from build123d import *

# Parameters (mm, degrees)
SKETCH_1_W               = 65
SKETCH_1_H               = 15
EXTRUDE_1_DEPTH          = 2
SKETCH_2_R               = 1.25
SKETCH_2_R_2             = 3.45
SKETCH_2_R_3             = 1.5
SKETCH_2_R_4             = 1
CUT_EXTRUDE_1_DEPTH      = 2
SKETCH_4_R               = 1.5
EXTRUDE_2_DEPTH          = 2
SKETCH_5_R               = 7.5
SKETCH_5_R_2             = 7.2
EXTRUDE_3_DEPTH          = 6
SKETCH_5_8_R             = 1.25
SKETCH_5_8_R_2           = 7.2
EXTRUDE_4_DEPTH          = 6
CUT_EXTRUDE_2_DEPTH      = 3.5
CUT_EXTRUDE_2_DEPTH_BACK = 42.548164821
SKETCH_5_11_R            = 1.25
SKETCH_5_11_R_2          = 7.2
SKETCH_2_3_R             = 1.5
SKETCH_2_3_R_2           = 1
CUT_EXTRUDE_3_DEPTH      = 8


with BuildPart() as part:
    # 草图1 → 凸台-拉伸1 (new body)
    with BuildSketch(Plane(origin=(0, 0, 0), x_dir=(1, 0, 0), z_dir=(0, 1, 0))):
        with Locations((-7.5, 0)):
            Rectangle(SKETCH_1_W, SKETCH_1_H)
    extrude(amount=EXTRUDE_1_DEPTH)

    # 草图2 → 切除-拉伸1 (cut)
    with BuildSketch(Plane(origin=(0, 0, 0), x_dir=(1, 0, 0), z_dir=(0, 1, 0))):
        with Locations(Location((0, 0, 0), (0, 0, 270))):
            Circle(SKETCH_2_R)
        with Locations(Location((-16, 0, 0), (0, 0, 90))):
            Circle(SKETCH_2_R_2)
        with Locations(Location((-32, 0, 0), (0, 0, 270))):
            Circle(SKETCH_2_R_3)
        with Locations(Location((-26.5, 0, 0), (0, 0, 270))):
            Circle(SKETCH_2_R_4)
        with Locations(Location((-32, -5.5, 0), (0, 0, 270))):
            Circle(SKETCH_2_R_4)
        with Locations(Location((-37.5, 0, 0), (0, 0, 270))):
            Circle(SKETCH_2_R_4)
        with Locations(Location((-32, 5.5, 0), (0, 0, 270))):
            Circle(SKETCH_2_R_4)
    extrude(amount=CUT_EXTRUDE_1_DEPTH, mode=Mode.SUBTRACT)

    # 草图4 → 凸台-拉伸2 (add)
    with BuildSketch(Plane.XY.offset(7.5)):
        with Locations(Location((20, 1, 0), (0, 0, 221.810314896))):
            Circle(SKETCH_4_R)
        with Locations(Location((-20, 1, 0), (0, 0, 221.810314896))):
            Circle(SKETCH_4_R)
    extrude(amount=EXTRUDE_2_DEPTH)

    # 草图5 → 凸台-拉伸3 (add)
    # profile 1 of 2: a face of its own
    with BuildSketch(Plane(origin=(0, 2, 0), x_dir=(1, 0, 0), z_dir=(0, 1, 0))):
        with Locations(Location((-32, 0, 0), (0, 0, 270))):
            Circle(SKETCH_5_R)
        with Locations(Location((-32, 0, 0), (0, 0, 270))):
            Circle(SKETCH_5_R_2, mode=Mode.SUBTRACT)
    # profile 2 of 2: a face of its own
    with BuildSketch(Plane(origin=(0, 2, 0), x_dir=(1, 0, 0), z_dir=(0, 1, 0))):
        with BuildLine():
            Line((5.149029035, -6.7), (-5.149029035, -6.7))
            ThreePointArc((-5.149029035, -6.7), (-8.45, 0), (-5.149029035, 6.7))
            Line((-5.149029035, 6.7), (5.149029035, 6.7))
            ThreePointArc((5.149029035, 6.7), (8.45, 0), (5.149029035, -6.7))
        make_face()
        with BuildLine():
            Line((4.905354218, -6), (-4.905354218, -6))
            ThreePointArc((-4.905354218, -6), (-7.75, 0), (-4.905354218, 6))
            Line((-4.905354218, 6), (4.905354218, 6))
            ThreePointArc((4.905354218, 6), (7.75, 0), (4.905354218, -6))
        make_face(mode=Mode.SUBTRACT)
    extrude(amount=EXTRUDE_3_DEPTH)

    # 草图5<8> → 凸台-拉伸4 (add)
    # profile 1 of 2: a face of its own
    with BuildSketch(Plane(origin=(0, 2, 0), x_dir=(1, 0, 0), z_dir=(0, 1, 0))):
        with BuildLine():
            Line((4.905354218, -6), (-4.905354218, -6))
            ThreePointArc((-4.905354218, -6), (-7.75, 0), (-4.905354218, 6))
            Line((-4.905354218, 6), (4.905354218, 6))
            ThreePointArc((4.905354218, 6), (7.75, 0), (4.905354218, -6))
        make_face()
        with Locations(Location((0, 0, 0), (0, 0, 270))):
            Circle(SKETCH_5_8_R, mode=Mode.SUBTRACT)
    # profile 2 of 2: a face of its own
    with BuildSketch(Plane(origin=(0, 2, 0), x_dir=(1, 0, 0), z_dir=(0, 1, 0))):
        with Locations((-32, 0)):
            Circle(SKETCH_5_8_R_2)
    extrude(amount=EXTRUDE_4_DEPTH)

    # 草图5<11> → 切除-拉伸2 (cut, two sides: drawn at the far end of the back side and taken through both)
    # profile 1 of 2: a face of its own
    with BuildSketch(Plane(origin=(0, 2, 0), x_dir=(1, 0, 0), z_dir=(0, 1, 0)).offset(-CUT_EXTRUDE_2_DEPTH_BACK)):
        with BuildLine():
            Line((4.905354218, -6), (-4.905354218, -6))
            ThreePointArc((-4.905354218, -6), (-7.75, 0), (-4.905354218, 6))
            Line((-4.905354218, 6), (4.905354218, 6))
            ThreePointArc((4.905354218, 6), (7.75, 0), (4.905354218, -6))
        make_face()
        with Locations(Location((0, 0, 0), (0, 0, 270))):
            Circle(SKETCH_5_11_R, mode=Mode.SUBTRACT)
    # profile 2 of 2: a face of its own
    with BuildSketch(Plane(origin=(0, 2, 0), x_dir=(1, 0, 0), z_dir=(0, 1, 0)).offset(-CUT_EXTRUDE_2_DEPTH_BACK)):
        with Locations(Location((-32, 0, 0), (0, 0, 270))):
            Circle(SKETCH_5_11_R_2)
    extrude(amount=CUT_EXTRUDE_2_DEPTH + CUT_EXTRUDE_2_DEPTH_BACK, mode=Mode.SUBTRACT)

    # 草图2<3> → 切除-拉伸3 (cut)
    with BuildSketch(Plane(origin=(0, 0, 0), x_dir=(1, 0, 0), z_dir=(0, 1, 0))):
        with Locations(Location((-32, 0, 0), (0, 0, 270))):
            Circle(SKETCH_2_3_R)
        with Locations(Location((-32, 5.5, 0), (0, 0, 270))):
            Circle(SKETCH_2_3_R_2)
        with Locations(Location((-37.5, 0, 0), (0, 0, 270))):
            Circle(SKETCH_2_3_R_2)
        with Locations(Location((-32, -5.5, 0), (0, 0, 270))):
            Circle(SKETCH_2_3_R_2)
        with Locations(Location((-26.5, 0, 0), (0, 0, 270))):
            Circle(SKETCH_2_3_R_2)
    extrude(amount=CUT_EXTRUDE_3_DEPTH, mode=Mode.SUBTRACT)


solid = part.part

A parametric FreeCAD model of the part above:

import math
import FreeCAD as App
import Part
import Sketcher
from FreeCAD import Vector
Q = App.Units.Quantity


def add_polygon(sketch, points):
    """Adds a closed chain of lines whose ends are joined by coincident constraints."""
    first, n = sketch.GeometryCount, len(points)
    for a, b in zip(points, points[1:] + points[:1]):
        sketch.addGeometry(Part.LineSegment(App.Vector(*a, 0), App.Vector(*b, 0)), False)
    for i in range(n):
        sketch.addConstraint(Sketcher.Constraint("Coincident", first + i, 2, first + (i + 1) % n, 1))

doc = App.newDocument("Part")
body = doc.addObject("PartDesign::Body", "Body")

sketch1 = doc.addObject("Sketcher::SketchObject", "Sketch")
body.addObject(sketch1)
sketch1.AttachmentSupport = (doc.XZ_Plane, [""])
sketch1.MapMode = "FlatFace"
add_polygon(sketch1, [(-40, -7.5), (-40, 7.5), (25, 7.5), (25, -7.5)])
sketch1.addConstraint(Sketcher.Constraint("Vertical", 0))
sketch1.addConstraint(Sketcher.Constraint("Horizontal", 1))
sketch1.addConstraint(Sketcher.Constraint("Vertical", 2))
sketch1.addConstraint(Sketcher.Constraint("Horizontal", 3))
sketch1.addConstraint(Sketcher.Constraint("DistanceX", 1, 1, 1, 2, Q("65 mm")))
sketch1.addConstraint(Sketcher.Constraint("DistanceY", 0, 1, 0, 2, Q("15 mm")))
sketch1.addConstraint(Sketcher.Constraint("DistanceX", 0, 2, -1, 1, Q("40 mm")))
sketch1.addConstraint(Sketcher.Constraint("DistanceY", -1, 1, 0, 2, Q("7.5 mm")))
pad1 = doc.addObject("PartDesign::Pad", "Pad")
body.addObject(pad1)
pad1.Profile = sketch1
pad1.Length = 2
pad1.Reversed = True

sketch2 = doc.addObject("Sketcher::SketchObject", "Sketch001")
body.addObject(sketch2)
sketch2.AttachmentSupport = (doc.XZ_Plane, [""])
sketch2.MapMode = "FlatFace"
sketch2.addGeometry(Part.Circle(Vector(0, 0, 0), Vector(0, 0, 1), 1.25), False)
sketch2.addGeometry(Part.Circle(Vector(-16, 0, 0), Vector(0, 0, 1), 3.45), False)
sketch2.addGeometry(Part.Circle(Vector(-32, 0, 0), Vector(0, 0, 1), 1.5), False)
sketch2.addGeometry(Part.Circle(Vector(-26.5, 0, 0), Vector(0, 0, 1), 1), False)
sketch2.addGeometry(Part.Circle(Vector(-32, 5.5, 0), Vector(0, 0, 1), 1), False)
sketch2.addGeometry(Part.Circle(Vector(-37.5, 0, 0), Vector(0, 0, 1), 1), False)
sketch2.addGeometry(Part.Circle(Vector(-32, -5.5, 0), Vector(0, 0, 1), 1), False)
sketch2.addConstraint(Sketcher.Constraint("Coincident", 0, 3, -1, 1))
sketch2.addConstraint(Sketcher.Constraint("Equal", 3, 4))
sketch2.addConstraint(Sketcher.Constraint("Equal", 4, 5))
sketch2.addConstraint(Sketcher.Constraint("Equal", 5, 6))
sketch2.addConstraint(Sketcher.Constraint("Symmetric", 4, 3, 6, 3, -1))
sketch2.addConstraint(Sketcher.Constraint("PointOnObject", 1, 3, -1))
sketch2.addConstraint(Sketcher.Constraint("PointOnObject", 2, 3, -1))
sketch2.addConstraint(Sketcher.Constraint("PointOnObject", 3, 3, -1))
sketch2.addConstraint(Sketcher.Constraint("PointOnObject", 5, 3, -1))
sketch2.addConstraint(Sketcher.Constraint("Vertical", 2, 3, 4, 3))
sketch2.addConstraint(Sketcher.Constraint("Diameter", 2, Q("3 mm")))
sketch2.addConstraint(Sketcher.Constraint("Diameter", 3, Q("2 mm")))
sketch2.addConstraint(Sketcher.Constraint("Diameter", 0, Q("2.5 mm")))
sketch2.addConstraint(Sketcher.Constraint("Diameter", 1, Q("6.9 mm")))
sketch2.addConstraint(Sketcher.Constraint("DistanceX", 1, 3, -1, 1, Q("16 mm")))
sketch2.addConstraint(Sketcher.Constraint("DistanceX", 2, 3, -1, 1, Q("32 mm")))
sketch2.addConstraint(Sketcher.Constraint("DistanceX", 5, 3, 3, 3, Q("11 mm")))
sketch2.addConstraint(Sketcher.Constraint("DistanceY", 6, 3, 4, 3, Q("11 mm")))
sketch2.addConstraint(Sketcher.Constraint("DistanceX", 3, 3, -1, 1, Q("26.5 mm")))
pocket1 = doc.addObject("PartDesign::Pocket", "Pocket")
body.addObject(pocket1)
pocket1.Profile = sketch2
pocket1.Length = 2

sketch3 = doc.addObject("Sketcher::SketchObject", "Sketch002")
body.addObject(sketch3)
sketch3.AttachmentSupport = (doc.XY_Plane, [""])
sketch3.MapMode = "FlatFace"
sketch3.AttachmentOffset = App.Placement(Vector(0, 0, 7.5), App.Rotation())
sketch3.addGeometry(Part.Circle(Vector(20, 1, 0), Vector(0, 0, 1), 1.5), False)
sketch3.addGeometry(Part.Circle(Vector(-20, 1, 0), Vector(0, 0, 1), 1.5), False)
sketch3.addConstraint(Sketcher.Constraint("Equal", 0, 1))
sketch3.addConstraint(Sketcher.Constraint("Symmetric", 0, 3, 1, 3, -2))
sketch3.addConstraint(Sketcher.Constraint("Diameter", 0, Q("3 mm")))
sketch3.addConstraint(Sketcher.Constraint("DistanceX", -1, 1, 0, 3, Q("20 mm")))
sketch3.addConstraint(Sketcher.Constraint("DistanceY", -1, 1, 0, 3, Q("1 mm")))
pad2 = doc.addObject("PartDesign::Pad", "Pad001")
body.addObject(pad2)
pad2.Profile = sketch3
pad2.Length = 2

sketch4 = doc.addObject("Sketcher::SketchObject", "Sketch003")
body.addObject(sketch4)
sketch4.AttachmentSupport = (doc.XZ_Plane, [""])
sketch4.MapMode = "FlatFace"
sketch4.AttachmentOffset = App.Placement(Vector(0, 0, -2), App.Rotation())
sketch4.addGeometry(Part.Circle(Vector(-32, 0, 0), Vector(0, 0, 1), 7.5), False)
sketch4.addGeometry(Part.Circle(Vector(-32, 0, 0), Vector(0, 0, 1), 7.2), False)
sketch4.addGeometry(Part.LineSegment(Vector(-5.149029, 6.7, 0), Vector(5.149029, 6.7, 0)), False)
sketch4.addGeometry(Part.ArcOfCircle(Part.Circle(Vector(0, 0, 0), Vector(0, 0, 1), 8.45), math.radians(-52.457297), math.radians(52.457297)), False)
sketch4.addGeometry(Part.LineSegment(Vector(5.149029, -6.7, 0), Vector(-5.149029, -6.7, 0)), False)
sketch4.addGeometry(Part.ArcOfCircle(Part.Circle(Vector(0, 0, 0), Vector(0, 0, 1), 8.45), math.radians(127.542703), math.radians(232.457297)), False)
sketch4.addGeometry(Part.LineSegment(Vector(4.905354, 6, 0), Vector(-4.905354, 6, 0)), False)
sketch4.addGeometry(Part.ArcOfCircle(Part.Circle(Vector(0, 0, 0), Vector(0, 0, 1), 7.75), math.radians(129.268026), math.radians(230.731974)), False)
sketch4.addGeometry(Part.LineSegment(Vector(-4.905354, -6, 0), Vector(4.905354, -6, 0)), False)
sketch4.addGeometry(Part.ArcOfCircle(Part.Circle(Vector(0, 0, 0), Vector(0, 0, 1), 7.75), math.radians(-50.731974), math.radians(50.731974)), False)
sketch4.addConstraint(Sketcher.Constraint("Coincident", 2, 2, 3, 2))
sketch4.addConstraint(Sketcher.Constraint("Coincident", 3, 1, 4, 1))
sketch4.addConstraint(Sketcher.Constraint("Coincident", 4, 2, 5, 2))
sketch4.addConstraint(Sketcher.Constraint("Coincident", 5, 1, 2, 1))
sketch4.addConstraint(Sketcher.Constraint("Coincident", 6, 2, 7, 1))
sketch4.addConstraint(Sketcher.Constraint("Coincident", 7, 2, 8, 1))
sketch4.addConstraint(Sketcher.Constraint("Coincident", 8, 2, 9, 1))
sketch4.addConstraint(Sketcher.Constraint("Coincident", 9, 2, 6, 1))
sketch4.addConstraint(Sketcher.Constraint("Horizontal", 2))
sketch4.addConstraint(Sketcher.Constraint("Horizontal", 4))
sketch4.addConstraint(Sketcher.Constraint("Horizontal", 6))
sketch4.addConstraint(Sketcher.Constraint("Horizontal", 8))
sketch4.addConstraint(Sketcher.Constraint("Coincident", 3, 3, -1, 1))
sketch4.addConstraint(Sketcher.Constraint("Coincident", 5, 3, -1, 1))
sketch4.addConstraint(Sketcher.Constraint("Coincident", 7, 3, -1, 1))
sketch4.addConstraint(Sketcher.Constraint("Coincident", 9, 3, -1, 1))
sketch4.addConstraint(Sketcher.Constraint("Coincident", 1, 3, 0, 3))
sketch4.addConstraint(Sketcher.Constraint("Equal", 3, 5))
sketch4.addConstraint(Sketcher.Constraint("Equal", 7, 9))
sketch4.addConstraint(Sketcher.Constraint("PointOnObject", 0, 3, -1))
sketch4.addConstraint(Sketcher.Constraint("Vertical", 2, 2, 3, 1))
sketch4.addConstraint(Sketcher.Constraint("Vertical", 6, 2, 7, 2))
sketch4.addConstraint(Sketcher.Constraint("Diameter", 0, Q("15 mm")))
sketch4.addConstraint(Sketcher.Constraint("Diameter", 1, Q("14.4 mm")))
sketch4.addConstraint(Sketcher.Constraint("Radius", 3, Q("8.45 mm")))
sketch4.addConstraint(Sketcher.Constraint("Radius", 7, Q("7.75 mm")))
sketch4.addConstraint(Sketcher.Constraint("DistanceX", 0, 3, -1, 1, Q("32 mm")))
sketch4.addConstraint(Sketcher.Constraint("DistanceY", -1, 1, 6, 2, Q("6 mm")))
sketch4.addConstraint(Sketcher.Constraint("DistanceY", -1, 1, 2, 2, Q("6.7 mm")))
pad3 = doc.addObject("PartDesign::Pad", "Pad002")
body.addObject(pad3)
pad3.Profile = sketch4
pad3.Length = 6
pad3.Reversed = True

sketch5 = doc.addObject("Sketcher::SketchObject", "Sketch004")
body.addObject(sketch5)
sketch5.AttachmentSupport = (doc.XZ_Plane, [""])
sketch5.MapMode = "FlatFace"
sketch5.AttachmentOffset = App.Placement(Vector(0, 0, -2), App.Rotation())
sketch5.addGeometry(Part.LineSegment(Vector(-4.905354, 6, 0), Vector(4.905354, 6, 0)), False)
sketch5.addGeometry(Part.ArcOfCircle(Part.Circle(Vector(0, 0, 0), Vector(0, 0, 1), 7.75), math.radians(-50.731974), math.radians(50.731974)), False)
sketch5.addGeometry(Part.LineSegment(Vector(4.905354, -6, 0), Vector(-4.905354, -6, 0)), False)
sketch5.addGeometry(Part.ArcOfCircle(Part.Circle(Vector(0, 0, 0), Vector(0, 0, 1), 7.75), math.radians(129.268026), math.radians(230.731974)), False)
sketch5.addGeometry(Part.Circle(Vector(0, 0, 0), Vector(0, 0, 1), 1.25), False)
sketch5.addGeometry(Part.Circle(Vector(-32, 0, 0), Vector(0, 0, 1), 7.2), False)
sketch5.addConstraint(Sketcher.Constraint("Coincident", 0, 2, 1, 2))
sketch5.addConstraint(Sketcher.Constraint("Coincident", 1, 1, 2, 1))
sketch5.addConstraint(Sketcher.Constraint("Coincident", 2, 2, 3, 2))
sketch5.addConstraint(Sketcher.Constraint("Coincident", 3, 1, 0, 1))
sketch5.addConstraint(Sketcher.Constraint("Horizontal", 0))
sketch5.addConstraint(Sketcher.Constraint("Horizontal", 2))
sketch5.addConstraint(Sketcher.Constraint("Coincident", 1, 3, -1, 1))
sketch5.addConstraint(Sketcher.Constraint("Coincident", 3, 3, -1, 1))
sketch5.addConstraint(Sketcher.Constraint("Coincident", 4, 3, -1, 1))
sketch5.addConstraint(Sketcher.Constraint("Equal", 1, 3))
sketch5.addConstraint(Sketcher.Constraint("PointOnObject", 5, 3, -1))
sketch5.addConstraint(Sketcher.Constraint("Vertical", 0, 2, 1, 1))
sketch5.addConstraint(Sketcher.Constraint("Diameter", 4, Q("2.5 mm")))
sketch5.addConstraint(Sketcher.Constraint("Diameter", 5, Q("14.4 mm")))
sketch5.addConstraint(Sketcher.Constraint("Radius", 1, Q("7.75 mm")))
sketch5.addConstraint(Sketcher.Constraint("DistanceX", 5, 3, -1, 1, Q("32 mm")))
sketch5.addConstraint(Sketcher.Constraint("DistanceY", -1, 1, 0, 2, Q("6 mm")))
pad4 = doc.addObject("PartDesign::Pad", "Pad003")
body.addObject(pad4)
pad4.Profile = sketch5
pad4.Length = 6
pad4.Reversed = True

sketch6 = doc.addObject("Sketcher::SketchObject", "Sketch005")
body.addObject(sketch6)
sketch6.AttachmentSupport = (doc.XZ_Plane, [""])
sketch6.MapMode = "FlatFace"
sketch6.AttachmentOffset = App.Placement(Vector(0, 0, -2), App.Rotation())
sketch6.addGeometry(Part.LineSegment(Vector(-4.905354, 6, 0), Vector(4.905354, 6, 0)), False)
sketch6.addGeometry(Part.ArcOfCircle(Part.Circle(Vector(0, 0, 0), Vector(0, 0, 1), 7.75), math.radians(-50.731974), math.radians(50.731974)), False)
sketch6.addGeometry(Part.LineSegment(Vector(4.905354, -6, 0), Vector(-4.905354, -6, 0)), False)
sketch6.addGeometry(Part.ArcOfCircle(Part.Circle(Vector(0, 0, 0), Vector(0, 0, 1), 7.75), math.radians(129.268026), math.radians(230.731974)), False)
sketch6.addGeometry(Part.Circle(Vector(0, 0, 0), Vector(0, 0, 1), 1.25), False)
sketch6.addGeometry(Part.Circle(Vector(-32, 0, 0), Vector(0, 0, 1), 7.2), False)
sketch6.addConstraint(Sketcher.Constraint("Coincident", 0, 2, 1, 2))
sketch6.addConstraint(Sketcher.Constraint("Coincident", 1, 1, 2, 1))
sketch6.addConstraint(Sketcher.Constraint("Coincident", 2, 2, 3, 2))
sketch6.addConstraint(Sketcher.Constraint("Coincident", 3, 1, 0, 1))
sketch6.addConstraint(Sketcher.Constraint("Horizontal", 0))
sketch6.addConstraint(Sketcher.Constraint("Horizontal", 2))
sketch6.addConstraint(Sketcher.Constraint("Coincident", 1, 3, -1, 1))
sketch6.addConstraint(Sketcher.Constraint("Coincident", 3, 3, -1, 1))
sketch6.addConstraint(Sketcher.Constraint("Coincident", 4, 3, -1, 1))
sketch6.addConstraint(Sketcher.Constraint("Equal", 1, 3))
sketch6.addConstraint(Sketcher.Constraint("PointOnObject", 5, 3, -1))
sketch6.addConstraint(Sketcher.Constraint("Vertical", 0, 2, 1, 1))
sketch6.addConstraint(Sketcher.Constraint("Diameter", 4, Q("2.5 mm")))
sketch6.addConstraint(Sketcher.Constraint("Diameter", 5, Q("14.4 mm")))
sketch6.addConstraint(Sketcher.Constraint("Radius", 1, Q("7.75 mm")))
sketch6.addConstraint(Sketcher.Constraint("DistanceX", 5, 3, -1, 1, Q("32 mm")))
sketch6.addConstraint(Sketcher.Constraint("DistanceY", -1, 1, 0, 2, Q("6 mm")))
pocket2 = doc.addObject("PartDesign::Pocket", "Pocket001")
body.addObject(pocket2)
pocket2.Profile = sketch6
pocket2.Type = "TwoLengths"
pocket2.Length = 3.5
pocket2.Length2 = 42.548165

sketch7 = doc.addObject("Sketcher::SketchObject", "Sketch006")
body.addObject(sketch7)
sketch7.AttachmentSupport = (doc.XZ_Plane, [""])
sketch7.MapMode = "FlatFace"
sketch7.addGeometry(Part.Circle(Vector(-32, 0, 0), Vector(0, 0, 1), 1.5), False)
sketch7.addGeometry(Part.Circle(Vector(-32, -5.5, 0), Vector(0, 0, 1), 1), False)
sketch7.addGeometry(Part.Circle(Vector(-37.5, 0, 0), Vector(0, 0, 1), 1), False)
sketch7.addGeometry(Part.Circle(Vector(-32, 5.5, 0), Vector(0, 0, 1), 1), False)
sketch7.addGeometry(Part.Circle(Vector(-26.5, 0, 0), Vector(0, 0, 1), 1), False)
sketch7.addConstraint(Sketcher.Constraint("Equal", 1, 2))
sketch7.addConstraint(Sketcher.Constraint("Equal", 2, 3))
sketch7.addConstraint(Sketcher.Constraint("Equal", 3, 4))
sketch7.addConstraint(Sketcher.Constraint("Symmetric", 1, 3, 3, 3, -1))
sketch7.addConstraint(Sketcher.Constraint("PointOnObject", 0, 3, -1))
sketch7.addConstraint(Sketcher.Constraint("PointOnObject", 2, 3, -1))
sketch7.addConstraint(Sketcher.Constraint("PointOnObject", 4, 3, -1))
sketch7.addConstraint(Sketcher.Constraint("Vertical", 0, 3, 1, 3))
sketch7.addConstraint(Sketcher.Constraint("Diameter", 0, Q("3 mm")))
sketch7.addConstraint(Sketcher.Constraint("Diameter", 1, Q("2 mm")))
sketch7.addConstraint(Sketcher.Constraint("DistanceX", 0, 3, -1, 1, Q("32 mm")))
sketch7.addConstraint(Sketcher.Constraint("DistanceY", 1, 3, 3, 3, Q("11 mm")))
sketch7.addConstraint(Sketcher.Constraint("DistanceX", 2, 3, 4, 3, Q("11 mm")))
sketch7.addConstraint(Sketcher.Constraint("DistanceX", 2, 3, -1, 1, Q("37.5 mm")))
pocket3 = doc.addObject("PartDesign::Pocket", "Pocket002")
body.addObject(pocket3)
pocket3.Profile = sketch7
pocket3.Length = 8

doc.recompute()
